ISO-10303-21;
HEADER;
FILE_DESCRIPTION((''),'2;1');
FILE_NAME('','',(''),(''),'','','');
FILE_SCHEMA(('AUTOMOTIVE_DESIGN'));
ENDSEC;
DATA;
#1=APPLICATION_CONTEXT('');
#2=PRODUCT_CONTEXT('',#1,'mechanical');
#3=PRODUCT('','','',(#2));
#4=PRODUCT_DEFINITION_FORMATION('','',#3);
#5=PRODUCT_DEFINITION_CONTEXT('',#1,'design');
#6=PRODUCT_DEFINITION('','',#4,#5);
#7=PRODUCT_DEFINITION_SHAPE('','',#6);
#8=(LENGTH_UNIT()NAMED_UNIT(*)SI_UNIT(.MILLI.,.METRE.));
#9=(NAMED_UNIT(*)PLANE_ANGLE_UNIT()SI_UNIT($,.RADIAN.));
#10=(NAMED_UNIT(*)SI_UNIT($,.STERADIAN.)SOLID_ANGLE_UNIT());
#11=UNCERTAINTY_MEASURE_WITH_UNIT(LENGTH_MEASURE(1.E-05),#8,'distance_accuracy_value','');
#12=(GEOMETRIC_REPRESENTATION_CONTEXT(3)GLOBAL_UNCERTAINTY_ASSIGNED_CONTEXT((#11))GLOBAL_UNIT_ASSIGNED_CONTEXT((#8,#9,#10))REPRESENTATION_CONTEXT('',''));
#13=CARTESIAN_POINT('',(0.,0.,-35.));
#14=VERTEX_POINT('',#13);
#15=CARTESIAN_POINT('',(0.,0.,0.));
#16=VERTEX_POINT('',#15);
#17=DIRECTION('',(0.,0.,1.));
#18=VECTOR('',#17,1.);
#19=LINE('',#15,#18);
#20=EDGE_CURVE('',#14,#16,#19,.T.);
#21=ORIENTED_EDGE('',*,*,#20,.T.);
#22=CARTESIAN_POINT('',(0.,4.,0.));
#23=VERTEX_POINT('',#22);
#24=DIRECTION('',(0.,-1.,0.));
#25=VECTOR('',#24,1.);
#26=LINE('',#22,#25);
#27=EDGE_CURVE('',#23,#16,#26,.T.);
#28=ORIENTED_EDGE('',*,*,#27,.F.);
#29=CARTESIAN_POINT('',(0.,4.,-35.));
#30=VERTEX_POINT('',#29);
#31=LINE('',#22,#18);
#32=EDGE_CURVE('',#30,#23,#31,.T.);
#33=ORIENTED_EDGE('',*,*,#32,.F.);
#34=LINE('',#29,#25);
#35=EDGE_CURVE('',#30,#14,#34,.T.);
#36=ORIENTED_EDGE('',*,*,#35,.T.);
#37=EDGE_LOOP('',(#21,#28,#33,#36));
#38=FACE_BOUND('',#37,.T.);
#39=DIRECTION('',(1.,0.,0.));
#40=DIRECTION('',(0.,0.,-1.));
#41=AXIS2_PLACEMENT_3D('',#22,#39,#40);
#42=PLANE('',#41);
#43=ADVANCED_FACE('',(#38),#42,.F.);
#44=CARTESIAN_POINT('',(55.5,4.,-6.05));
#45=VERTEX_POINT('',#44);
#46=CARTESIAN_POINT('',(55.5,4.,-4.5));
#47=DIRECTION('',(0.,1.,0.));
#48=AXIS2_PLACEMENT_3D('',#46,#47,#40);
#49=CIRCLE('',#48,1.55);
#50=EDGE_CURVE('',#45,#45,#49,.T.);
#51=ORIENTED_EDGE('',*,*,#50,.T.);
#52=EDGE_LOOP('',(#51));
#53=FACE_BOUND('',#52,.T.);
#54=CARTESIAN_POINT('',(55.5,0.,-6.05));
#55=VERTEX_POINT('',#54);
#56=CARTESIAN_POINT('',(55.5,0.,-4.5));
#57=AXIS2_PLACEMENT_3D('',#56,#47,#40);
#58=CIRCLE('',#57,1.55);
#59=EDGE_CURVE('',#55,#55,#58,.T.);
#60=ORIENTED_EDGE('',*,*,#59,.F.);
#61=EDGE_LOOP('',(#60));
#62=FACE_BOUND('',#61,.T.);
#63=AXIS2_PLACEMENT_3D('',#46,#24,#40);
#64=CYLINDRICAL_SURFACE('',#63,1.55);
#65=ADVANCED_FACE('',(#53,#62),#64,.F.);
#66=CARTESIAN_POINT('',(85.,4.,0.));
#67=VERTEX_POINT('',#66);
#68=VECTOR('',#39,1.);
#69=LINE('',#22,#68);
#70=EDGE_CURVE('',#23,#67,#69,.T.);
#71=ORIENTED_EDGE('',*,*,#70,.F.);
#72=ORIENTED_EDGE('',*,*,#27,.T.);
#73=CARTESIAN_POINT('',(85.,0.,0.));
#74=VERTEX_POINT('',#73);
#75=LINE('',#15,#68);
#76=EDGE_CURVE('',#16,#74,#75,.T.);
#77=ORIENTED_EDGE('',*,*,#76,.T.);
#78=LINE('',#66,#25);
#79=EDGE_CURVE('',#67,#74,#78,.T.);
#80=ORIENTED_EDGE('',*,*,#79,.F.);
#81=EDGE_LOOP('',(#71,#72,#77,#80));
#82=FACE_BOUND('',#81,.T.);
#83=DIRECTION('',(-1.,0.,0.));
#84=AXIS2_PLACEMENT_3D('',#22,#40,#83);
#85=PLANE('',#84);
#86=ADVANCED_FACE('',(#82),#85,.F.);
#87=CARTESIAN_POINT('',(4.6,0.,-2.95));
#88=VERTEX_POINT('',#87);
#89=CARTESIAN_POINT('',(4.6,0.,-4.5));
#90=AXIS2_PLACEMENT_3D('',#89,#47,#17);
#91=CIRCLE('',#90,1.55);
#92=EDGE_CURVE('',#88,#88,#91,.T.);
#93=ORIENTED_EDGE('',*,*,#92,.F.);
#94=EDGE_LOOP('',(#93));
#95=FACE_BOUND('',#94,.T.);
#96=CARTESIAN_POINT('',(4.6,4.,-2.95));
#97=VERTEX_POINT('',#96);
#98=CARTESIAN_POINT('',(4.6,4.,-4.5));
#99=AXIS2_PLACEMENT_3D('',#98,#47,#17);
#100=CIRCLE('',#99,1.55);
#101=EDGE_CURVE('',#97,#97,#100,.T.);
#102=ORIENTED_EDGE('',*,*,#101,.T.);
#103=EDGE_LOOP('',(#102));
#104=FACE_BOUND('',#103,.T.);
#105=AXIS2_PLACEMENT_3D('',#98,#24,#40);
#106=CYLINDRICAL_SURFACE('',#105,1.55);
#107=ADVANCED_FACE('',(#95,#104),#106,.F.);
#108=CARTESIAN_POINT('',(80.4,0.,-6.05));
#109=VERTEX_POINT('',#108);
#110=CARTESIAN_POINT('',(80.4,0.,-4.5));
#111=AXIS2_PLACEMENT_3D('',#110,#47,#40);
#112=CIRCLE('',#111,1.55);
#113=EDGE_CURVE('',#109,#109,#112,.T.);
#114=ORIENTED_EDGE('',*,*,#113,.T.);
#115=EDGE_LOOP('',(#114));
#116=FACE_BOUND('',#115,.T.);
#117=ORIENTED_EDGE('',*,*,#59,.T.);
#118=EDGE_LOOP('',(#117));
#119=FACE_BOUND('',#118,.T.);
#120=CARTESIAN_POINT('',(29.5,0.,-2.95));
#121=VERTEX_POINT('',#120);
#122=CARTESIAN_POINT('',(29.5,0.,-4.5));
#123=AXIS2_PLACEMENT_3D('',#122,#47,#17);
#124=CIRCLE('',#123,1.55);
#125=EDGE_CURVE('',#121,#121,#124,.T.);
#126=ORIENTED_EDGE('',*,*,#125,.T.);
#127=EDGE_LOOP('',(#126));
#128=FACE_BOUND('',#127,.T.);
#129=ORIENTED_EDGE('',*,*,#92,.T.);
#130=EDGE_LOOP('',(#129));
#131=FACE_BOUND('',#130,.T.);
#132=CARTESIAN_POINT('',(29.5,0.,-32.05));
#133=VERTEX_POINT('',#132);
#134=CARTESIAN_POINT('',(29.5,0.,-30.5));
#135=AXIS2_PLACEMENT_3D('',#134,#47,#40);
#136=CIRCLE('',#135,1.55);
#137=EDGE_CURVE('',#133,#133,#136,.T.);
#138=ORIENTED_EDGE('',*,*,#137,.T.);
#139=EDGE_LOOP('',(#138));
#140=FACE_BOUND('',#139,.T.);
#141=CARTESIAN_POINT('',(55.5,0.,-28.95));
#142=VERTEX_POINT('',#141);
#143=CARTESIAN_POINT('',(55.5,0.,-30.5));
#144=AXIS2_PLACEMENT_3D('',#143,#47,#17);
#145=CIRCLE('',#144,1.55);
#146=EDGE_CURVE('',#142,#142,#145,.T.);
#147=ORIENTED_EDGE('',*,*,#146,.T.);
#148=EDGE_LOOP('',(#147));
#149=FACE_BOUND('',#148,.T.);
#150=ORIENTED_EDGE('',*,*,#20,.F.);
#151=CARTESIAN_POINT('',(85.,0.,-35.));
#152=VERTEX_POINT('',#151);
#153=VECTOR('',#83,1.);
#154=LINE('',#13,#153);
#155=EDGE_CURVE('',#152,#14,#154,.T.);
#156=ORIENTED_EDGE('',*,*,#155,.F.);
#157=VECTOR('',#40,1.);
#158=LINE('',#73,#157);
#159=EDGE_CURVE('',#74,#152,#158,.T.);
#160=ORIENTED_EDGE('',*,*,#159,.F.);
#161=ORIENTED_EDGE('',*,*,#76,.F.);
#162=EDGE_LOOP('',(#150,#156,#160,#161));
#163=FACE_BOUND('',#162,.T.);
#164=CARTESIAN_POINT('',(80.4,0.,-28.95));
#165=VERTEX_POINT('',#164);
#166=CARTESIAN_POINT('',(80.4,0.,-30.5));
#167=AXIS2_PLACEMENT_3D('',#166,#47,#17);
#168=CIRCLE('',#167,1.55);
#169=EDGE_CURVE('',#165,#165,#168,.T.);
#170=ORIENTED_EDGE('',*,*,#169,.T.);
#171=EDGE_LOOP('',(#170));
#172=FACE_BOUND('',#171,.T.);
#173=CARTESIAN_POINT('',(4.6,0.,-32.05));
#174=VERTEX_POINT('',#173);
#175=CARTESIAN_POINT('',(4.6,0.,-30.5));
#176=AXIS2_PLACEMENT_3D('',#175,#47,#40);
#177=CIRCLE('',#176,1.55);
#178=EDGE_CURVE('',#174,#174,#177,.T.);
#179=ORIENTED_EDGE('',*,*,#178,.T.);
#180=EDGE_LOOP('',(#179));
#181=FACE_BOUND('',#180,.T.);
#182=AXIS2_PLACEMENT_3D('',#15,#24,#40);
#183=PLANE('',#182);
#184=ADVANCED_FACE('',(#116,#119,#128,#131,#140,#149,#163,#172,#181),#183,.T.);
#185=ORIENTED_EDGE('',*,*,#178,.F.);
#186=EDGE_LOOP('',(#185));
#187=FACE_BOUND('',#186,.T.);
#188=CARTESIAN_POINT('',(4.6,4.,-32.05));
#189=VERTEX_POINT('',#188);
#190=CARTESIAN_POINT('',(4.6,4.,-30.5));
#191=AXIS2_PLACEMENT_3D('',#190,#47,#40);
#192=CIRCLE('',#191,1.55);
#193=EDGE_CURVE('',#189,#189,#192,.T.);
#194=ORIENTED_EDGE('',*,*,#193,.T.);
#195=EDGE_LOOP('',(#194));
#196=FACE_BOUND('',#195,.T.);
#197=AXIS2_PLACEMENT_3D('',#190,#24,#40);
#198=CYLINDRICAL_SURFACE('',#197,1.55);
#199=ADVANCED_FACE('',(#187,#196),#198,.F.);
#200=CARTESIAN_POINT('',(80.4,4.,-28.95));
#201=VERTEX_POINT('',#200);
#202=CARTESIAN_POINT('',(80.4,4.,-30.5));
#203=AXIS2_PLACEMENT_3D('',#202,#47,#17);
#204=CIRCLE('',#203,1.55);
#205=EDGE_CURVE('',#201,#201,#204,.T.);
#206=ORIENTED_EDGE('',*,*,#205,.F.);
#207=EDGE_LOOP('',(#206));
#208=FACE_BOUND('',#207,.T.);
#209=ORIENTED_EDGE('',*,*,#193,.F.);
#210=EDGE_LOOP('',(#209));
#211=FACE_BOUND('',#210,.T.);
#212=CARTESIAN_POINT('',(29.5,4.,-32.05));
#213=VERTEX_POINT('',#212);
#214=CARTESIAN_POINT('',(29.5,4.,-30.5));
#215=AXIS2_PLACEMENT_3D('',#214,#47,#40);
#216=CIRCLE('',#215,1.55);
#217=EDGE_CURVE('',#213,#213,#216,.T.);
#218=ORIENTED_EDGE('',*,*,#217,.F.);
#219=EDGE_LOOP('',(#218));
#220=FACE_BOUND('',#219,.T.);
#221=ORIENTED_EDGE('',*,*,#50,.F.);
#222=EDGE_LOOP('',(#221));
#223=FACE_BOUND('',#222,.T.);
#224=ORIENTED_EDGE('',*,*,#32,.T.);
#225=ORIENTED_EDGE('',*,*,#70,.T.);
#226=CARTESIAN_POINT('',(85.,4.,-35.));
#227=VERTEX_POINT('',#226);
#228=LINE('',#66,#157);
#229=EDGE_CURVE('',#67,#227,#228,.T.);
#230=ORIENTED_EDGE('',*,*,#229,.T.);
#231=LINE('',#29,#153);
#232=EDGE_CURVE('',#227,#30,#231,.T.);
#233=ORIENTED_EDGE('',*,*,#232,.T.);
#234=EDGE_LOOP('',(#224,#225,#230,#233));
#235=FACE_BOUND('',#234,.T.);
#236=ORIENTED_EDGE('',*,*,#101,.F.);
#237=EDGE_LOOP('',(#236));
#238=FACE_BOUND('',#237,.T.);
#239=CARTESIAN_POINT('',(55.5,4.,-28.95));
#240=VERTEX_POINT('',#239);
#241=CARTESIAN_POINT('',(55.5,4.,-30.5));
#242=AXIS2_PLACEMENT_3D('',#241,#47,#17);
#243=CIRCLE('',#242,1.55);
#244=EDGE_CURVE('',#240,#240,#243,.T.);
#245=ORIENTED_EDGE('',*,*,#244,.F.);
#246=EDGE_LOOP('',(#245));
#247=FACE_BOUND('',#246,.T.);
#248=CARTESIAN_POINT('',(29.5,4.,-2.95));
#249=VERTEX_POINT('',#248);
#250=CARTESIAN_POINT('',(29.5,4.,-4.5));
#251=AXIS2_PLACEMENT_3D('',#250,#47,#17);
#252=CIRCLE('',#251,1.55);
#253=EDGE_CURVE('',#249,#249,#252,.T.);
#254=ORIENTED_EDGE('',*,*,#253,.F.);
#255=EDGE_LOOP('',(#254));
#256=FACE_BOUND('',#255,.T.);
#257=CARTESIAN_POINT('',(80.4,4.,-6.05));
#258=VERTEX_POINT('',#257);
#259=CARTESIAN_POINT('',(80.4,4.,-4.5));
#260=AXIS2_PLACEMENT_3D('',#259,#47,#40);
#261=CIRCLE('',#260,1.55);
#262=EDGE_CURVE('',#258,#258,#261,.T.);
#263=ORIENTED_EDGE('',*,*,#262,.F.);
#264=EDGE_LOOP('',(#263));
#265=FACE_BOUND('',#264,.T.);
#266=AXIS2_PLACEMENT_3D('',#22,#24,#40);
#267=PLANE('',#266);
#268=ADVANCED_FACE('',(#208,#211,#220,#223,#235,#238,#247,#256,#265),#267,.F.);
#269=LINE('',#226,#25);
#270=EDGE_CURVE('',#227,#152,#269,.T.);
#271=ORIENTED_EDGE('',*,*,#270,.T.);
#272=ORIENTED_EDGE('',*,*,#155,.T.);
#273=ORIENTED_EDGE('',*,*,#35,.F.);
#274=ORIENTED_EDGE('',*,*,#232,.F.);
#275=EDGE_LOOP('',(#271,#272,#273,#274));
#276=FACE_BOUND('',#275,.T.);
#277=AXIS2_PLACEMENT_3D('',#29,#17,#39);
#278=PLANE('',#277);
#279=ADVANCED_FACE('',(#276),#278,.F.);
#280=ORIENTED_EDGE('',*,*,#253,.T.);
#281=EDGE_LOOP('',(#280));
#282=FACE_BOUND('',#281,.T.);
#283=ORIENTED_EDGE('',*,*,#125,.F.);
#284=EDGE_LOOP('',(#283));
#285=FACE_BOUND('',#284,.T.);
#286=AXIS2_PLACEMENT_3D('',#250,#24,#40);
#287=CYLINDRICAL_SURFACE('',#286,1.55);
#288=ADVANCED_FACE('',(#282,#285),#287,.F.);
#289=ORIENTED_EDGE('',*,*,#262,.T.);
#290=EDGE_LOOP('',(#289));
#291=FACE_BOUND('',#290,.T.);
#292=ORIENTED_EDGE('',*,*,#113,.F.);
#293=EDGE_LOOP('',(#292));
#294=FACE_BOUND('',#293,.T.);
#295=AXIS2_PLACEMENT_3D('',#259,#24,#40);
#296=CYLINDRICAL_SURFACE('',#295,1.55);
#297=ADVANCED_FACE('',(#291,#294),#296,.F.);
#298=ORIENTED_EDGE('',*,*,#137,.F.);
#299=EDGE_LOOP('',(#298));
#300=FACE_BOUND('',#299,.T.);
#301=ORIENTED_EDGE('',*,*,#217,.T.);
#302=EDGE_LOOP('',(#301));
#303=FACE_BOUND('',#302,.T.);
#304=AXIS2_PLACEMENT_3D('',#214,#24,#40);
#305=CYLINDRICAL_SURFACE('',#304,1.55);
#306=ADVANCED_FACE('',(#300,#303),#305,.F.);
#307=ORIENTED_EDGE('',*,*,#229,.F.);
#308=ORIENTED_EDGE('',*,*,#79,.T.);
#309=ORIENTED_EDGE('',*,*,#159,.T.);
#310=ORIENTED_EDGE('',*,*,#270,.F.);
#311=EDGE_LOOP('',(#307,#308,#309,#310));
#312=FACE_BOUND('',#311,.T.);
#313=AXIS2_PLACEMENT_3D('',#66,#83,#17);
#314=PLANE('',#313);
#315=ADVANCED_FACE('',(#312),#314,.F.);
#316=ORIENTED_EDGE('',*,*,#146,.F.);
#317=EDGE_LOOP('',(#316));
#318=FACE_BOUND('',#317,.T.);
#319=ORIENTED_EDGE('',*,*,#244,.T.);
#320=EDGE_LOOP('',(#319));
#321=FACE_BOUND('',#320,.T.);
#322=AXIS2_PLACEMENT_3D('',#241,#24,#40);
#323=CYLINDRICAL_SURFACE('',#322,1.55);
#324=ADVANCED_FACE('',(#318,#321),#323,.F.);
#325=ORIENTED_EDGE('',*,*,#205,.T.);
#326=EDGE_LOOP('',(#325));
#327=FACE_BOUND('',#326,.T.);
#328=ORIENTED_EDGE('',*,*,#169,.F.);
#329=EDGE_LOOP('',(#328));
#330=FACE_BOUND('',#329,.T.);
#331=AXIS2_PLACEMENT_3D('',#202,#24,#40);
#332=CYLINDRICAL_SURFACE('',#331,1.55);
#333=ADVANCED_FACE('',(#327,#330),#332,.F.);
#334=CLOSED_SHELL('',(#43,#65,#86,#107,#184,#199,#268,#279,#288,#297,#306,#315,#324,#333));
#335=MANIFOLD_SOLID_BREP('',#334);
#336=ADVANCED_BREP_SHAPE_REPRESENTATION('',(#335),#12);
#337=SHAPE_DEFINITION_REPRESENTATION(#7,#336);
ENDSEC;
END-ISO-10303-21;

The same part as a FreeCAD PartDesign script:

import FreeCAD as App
import Part
import Sketcher
from FreeCAD import Vector


def add_polygon(sketch, points):
    """Adds a closed chain of lines whose ends are joined by coincident constraints."""
    first, n = sketch.GeometryCount, len(points)
    for a, b in zip(points, points[1:] + points[:1]):
        sketch.addGeometry(Part.LineSegment(App.Vector(*a, 0), App.Vector(*b, 0)), False)
    for i in range(n):
        sketch.addConstraint(Sketcher.Constraint("Coincident", first + i, 2, first + (i + 1) % n, 1))

doc = App.newDocument("Part")
body = doc.addObject("PartDesign::Body", "Body")

# Sketch on XZ plane
sketch1 = body.newObject("Sketcher::SketchObject", "Sketch")
sketch1.AttachmentSupport = (doc.getObject("XZ_Plane"), [""])
sketch1.MapMode = "FlatFace"
add_polygon(sketch1, [(0, -35), (0, 0), (85, 0), (85, -35)])  # lines 0-3
sketch1.addGeometry(Part.Circle(Vector(4.6, -4.5, 0), Vector(0, 0, 1), 1.55), False)  # 4
sketch1.addGeometry(Part.Circle(Vector(29.5, -4.5, 0), Vector(0, 0, 1), 1.55), False)  # 5
sketch1.addGeometry(Part.Circle(Vector(55.5, -4.5, 0), Vector(0, 0, 1), 1.55), False)  # 6
sketch1.addGeometry(Part.Circle(Vector(80.4, -4.5, 0), Vector(0, 0, 1), 1.55), False)  # 7
sketch1.addGeometry(Part.Circle(Vector(4.6, -30.5, 0), Vector(0, 0, 1), 1.55), False)  # 8
sketch1.addGeometry(Part.Circle(Vector(29.5, -30.5, 0), Vector(0, 0, 1), 1.55), False)  # 9
sketch1.addGeometry(Part.Circle(Vector(55.5, -30.5, 0), Vector(0, 0, 1), 1.55), False)  # 10
sketch1.addGeometry(Part.Circle(Vector(80.4, -30.5, 0), Vector(0, 0, 1), 1.55), False)  # 11
sketch1.addConstraint([
    Sketcher.Constraint("Vertical", 0),
    Sketcher.Constraint("Horizontal", 1),
    Sketcher.Constraint("Vertical", 2),
    Sketcher.Constraint("Horizontal", 3),
    Sketcher.Constraint("Coincident", 0, 2, -1, 1),
    Sketcher.Constraint("Equal", 4, 5),
    Sketcher.Constraint("Equal", 5, 6),
    Sketcher.Constraint("Equal", 6, 7),
    Sketcher.Constraint("Equal", 7, 8),
    Sketcher.Constraint("Equal", 8, 9),
    Sketcher.Constraint("Equal", 9, 10),
    Sketcher.Constraint("Equal", 10, 11),
    Sketcher.Constraint("Horizontal", 4, 3, 5, 3),
    Sketcher.Constraint("Horizontal", 5, 3, 6, 3),
    Sketcher.Constraint("Horizontal", 6, 3, 7, 3),
    Sketcher.Constraint("Horizontal", 8, 3, 9, 3),
    Sketcher.Constraint("Horizontal", 9, 3, 10, 3),
    Sketcher.Constraint("Horizontal", 10, 3, 11, 3),
    Sketcher.Constraint("Vertical", 4, 3, 8, 3),
    Sketcher.Constraint("Vertical", 5, 3, 9, 3),
    Sketcher.Constraint("Vertical", 6, 3, 10, 3),
    Sketcher.Constraint("Vertical", 7, 3, 11, 3),
    Sketcher.Constraint("Diameter", 4, 3.1),
    Sketcher.Constraint("DistanceX", 1, 1, 1, 2, 85.0),
    Sketcher.Constraint("DistanceY", 0, 1, 0, 2, 35.0),
    Sketcher.Constraint("DistanceX", 5, 3, 6, 3, 26.0),
    Sketcher.Constraint("DistanceY", 8, 3, 4, 3, 26.0),
    Sketcher.Constraint("DistanceX", -1, 1, 4, 3, 4.6),
    Sketcher.Constraint("DistanceY", 4, 3, -1, 1, 4.5),
    Sketcher.Constraint("DistanceX", -1, 1, 5, 3, 29.5),
    Sketcher.Constraint("DistanceX", -1, 1, 7, 3, 80.4),
])
pad1 = body.newObject("PartDesign::Pad", "Pad")
pad1.Profile = sketch1
pad1.Length = 4
pad1.Reversed = True

doc.recompute()
